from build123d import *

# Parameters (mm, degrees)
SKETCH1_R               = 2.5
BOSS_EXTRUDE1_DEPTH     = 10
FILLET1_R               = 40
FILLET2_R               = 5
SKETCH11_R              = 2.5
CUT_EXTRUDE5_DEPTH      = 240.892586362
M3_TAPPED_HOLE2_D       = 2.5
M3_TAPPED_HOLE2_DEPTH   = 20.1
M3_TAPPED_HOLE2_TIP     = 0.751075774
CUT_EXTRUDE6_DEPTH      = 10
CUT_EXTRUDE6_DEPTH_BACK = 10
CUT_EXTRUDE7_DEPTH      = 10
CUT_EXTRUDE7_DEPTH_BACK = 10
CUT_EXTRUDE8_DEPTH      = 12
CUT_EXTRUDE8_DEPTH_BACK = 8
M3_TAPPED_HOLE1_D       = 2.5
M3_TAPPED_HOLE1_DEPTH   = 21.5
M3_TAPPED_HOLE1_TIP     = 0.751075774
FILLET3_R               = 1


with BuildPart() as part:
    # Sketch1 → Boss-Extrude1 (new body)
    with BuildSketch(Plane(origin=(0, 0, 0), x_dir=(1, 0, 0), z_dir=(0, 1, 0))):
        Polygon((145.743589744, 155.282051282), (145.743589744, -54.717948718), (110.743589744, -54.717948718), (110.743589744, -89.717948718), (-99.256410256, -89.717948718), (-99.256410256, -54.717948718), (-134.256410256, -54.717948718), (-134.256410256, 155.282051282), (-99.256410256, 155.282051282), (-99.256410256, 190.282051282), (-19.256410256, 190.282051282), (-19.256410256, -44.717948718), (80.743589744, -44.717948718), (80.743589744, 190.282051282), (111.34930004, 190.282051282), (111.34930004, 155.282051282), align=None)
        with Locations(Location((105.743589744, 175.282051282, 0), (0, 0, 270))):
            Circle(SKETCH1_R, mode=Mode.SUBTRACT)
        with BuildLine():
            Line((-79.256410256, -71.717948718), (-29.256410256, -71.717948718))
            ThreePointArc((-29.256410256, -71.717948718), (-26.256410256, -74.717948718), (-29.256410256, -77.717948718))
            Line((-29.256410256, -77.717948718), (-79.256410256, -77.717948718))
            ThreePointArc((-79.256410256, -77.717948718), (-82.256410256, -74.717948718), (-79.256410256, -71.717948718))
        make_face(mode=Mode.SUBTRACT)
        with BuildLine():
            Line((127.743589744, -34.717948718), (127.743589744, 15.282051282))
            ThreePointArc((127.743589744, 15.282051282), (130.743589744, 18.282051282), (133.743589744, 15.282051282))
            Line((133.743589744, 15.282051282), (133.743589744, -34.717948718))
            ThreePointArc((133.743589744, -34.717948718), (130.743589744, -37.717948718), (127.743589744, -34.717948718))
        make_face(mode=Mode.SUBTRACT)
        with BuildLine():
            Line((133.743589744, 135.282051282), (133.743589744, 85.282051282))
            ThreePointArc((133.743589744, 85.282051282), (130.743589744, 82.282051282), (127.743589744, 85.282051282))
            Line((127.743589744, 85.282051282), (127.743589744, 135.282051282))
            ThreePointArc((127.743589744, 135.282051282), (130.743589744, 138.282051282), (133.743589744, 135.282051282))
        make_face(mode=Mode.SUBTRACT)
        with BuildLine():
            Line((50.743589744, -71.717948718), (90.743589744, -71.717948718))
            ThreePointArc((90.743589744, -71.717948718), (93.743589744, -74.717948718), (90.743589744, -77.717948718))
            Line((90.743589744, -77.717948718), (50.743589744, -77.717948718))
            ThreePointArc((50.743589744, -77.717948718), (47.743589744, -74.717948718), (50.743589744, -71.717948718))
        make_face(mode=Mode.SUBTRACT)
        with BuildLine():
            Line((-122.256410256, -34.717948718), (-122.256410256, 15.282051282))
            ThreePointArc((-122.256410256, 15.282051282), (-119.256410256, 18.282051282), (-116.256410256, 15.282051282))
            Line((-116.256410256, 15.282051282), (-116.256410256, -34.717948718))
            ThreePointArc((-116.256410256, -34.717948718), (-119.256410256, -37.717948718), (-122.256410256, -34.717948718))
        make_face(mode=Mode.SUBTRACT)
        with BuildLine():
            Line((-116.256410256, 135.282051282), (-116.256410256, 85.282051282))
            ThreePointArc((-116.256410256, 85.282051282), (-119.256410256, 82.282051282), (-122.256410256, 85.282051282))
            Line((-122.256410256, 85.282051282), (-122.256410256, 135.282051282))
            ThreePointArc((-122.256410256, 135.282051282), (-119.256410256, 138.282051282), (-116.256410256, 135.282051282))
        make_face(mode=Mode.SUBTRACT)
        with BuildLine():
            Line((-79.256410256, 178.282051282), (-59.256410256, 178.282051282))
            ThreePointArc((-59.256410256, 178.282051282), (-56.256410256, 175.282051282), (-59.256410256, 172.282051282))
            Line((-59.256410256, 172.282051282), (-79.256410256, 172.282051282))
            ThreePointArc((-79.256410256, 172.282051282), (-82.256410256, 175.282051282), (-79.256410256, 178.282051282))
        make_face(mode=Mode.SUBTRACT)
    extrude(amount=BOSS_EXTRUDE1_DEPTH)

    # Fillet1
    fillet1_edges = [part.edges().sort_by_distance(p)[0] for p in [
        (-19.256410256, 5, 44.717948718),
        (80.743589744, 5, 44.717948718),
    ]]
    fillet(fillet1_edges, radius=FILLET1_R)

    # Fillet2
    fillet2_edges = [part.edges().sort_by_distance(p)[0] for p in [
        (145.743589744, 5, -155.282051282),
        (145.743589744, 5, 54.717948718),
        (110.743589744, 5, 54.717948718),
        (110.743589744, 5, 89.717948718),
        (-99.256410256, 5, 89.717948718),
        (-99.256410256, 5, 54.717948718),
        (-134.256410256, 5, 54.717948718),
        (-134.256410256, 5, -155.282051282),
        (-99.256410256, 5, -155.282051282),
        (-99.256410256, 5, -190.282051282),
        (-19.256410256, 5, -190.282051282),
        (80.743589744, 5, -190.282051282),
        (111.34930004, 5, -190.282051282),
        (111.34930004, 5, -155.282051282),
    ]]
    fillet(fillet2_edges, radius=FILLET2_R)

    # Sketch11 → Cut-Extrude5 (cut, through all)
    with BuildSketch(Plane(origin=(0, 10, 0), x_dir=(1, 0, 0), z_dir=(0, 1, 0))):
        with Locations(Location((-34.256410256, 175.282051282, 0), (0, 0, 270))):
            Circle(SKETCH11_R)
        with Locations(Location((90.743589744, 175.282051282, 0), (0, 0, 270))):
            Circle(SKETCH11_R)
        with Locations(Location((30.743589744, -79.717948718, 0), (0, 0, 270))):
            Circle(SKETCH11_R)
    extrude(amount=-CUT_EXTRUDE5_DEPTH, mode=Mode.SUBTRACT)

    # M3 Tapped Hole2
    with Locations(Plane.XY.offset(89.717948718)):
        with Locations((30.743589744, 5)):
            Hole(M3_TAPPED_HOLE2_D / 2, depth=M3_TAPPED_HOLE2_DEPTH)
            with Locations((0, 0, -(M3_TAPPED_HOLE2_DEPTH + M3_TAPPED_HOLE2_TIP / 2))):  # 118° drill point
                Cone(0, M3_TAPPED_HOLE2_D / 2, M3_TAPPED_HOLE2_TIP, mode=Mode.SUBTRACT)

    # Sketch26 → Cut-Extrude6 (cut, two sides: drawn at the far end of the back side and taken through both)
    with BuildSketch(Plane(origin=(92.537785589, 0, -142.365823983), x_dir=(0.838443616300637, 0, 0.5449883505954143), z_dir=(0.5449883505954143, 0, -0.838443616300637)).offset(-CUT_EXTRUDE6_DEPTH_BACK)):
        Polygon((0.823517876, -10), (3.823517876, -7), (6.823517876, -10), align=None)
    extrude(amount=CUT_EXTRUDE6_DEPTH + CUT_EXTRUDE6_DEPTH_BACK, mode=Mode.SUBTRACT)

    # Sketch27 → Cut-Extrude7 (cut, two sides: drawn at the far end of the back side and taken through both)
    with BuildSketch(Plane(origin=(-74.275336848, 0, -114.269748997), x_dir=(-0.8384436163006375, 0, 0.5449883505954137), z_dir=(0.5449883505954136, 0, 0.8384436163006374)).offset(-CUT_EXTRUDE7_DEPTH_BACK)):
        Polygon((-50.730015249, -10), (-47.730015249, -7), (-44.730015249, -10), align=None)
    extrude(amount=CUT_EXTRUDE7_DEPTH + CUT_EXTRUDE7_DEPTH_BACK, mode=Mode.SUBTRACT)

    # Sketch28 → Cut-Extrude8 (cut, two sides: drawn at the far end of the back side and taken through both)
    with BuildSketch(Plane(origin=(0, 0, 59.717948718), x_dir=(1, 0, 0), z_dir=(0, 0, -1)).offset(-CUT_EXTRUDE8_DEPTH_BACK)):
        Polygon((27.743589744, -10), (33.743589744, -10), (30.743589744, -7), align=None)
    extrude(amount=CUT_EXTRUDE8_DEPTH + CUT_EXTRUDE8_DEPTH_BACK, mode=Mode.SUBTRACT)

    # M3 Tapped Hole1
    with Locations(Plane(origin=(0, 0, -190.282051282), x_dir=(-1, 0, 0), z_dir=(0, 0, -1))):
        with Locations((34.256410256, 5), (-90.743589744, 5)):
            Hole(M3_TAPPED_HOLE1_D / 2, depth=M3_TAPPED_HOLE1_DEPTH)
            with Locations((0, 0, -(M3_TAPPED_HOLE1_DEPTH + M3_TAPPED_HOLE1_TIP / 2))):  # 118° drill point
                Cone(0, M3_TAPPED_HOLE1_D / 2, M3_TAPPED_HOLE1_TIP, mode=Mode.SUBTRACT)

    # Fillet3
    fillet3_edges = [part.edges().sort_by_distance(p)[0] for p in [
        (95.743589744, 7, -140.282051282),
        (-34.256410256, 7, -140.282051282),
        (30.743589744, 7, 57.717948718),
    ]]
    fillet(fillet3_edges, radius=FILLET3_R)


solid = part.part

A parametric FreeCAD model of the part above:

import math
import FreeCAD as App
import Part
import Sketcher

V = App.Vector
Q = App.Units.Quantity


def edges_at(feature, points):
    """Names of the edges that pass closest to the given points."""
    edges = feature.Shape.Edges
    near = lambda p: min(range(len(edges)), key=lambda i: edges[i].distToShape(Part.Vertex(*p))[0])
    return sorted({f"Edge{near(p) + 1}" for p in points})


def add_polygon(sketch, points):
    """Adds a closed chain of lines whose ends are joined by coincident constraints."""
    first, n = sketch.GeometryCount, len(points)
    for a, b in zip(points, points[1:] + points[:1]):
        sketch.addGeometry(Part.LineSegment(App.Vector(*a, 0), App.Vector(*b, 0)), False)
    for i in range(n):
        sketch.addConstraint(Sketcher.Constraint("Coincident", first + i, 2, first + (i + 1) % n, 1))

doc = App.newDocument("Part")
body = doc.addObject("PartDesign::Body", "Body")

# Sketch on XZ plane
sketch1 = body.newObject("Sketcher::SketchObject", "Sketch")
sketch1.AttachmentSupport = (doc.getObject("XZ_Plane"), [""])
sketch1.MapMode = "FlatFace"
add_polygon(sketch1, [(145.7, 54.7), (145.7, -155.3), (111.3, -155.3), (111.3, -190.3), (80.7, -190.3), (80.7, 44.7), (-19.3, 44.7), (-19.3, -190.3), (-99.3, -190.3), (-99.3, -155.3), (-134.3, -155.3), (-134.3, 54.7), (-99.3, 54.7), (-99.3, 89.7), (110.7, 89.7), (110.7, 54.7)])  # lines 0-15
sketch1.addGeometry(Part.LineSegment(V(50.7, 71.7, 0), V(90.7, 71.7, 0)), False)  # 16
sketch1.addGeometry(Part.ArcOfCircle(Part.Circle(V(90.7, 74.7, 0), V(0, 0, 1), 3), math.radians(-90), math.radians(90)), False)  # 17
sketch1.addGeometry(Part.LineSegment(V(90.7, 77.7, 0), V(50.7, 77.7, 0)), False)  # 18
sketch1.addGeometry(Part.ArcOfCircle(Part.Circle(V(50.7, 74.7, 0), V(0, 0, 1), 3), math.radians(90), math.radians(270)), False)  # 19
sketch1.addGeometry(Part.LineSegment(V(127.7, 34.7, 0), V(127.7, -15.3, 0)), False)  # 20
sketch1.addGeometry(Part.ArcOfCircle(Part.Circle(V(130.7, -15.3, 0), V(0, 0, 1), 3), math.radians(180), math.radians(360)), False)  # 21
sketch1.addGeometry(Part.LineSegment(V(133.7, -15.3, 0), V(133.7, 34.7, 0)), False)  # 22
sketch1.addGeometry(Part.ArcOfCircle(Part.Circle(V(130.7, 34.7, 0), V(0, 0, 1), 3), math.radians(0), math.radians(180)), False)  # 23
sketch1.addGeometry(Part.LineSegment(V(-79.3, 71.7, 0), V(-29.3, 71.7, 0)), False)  # 24
sketch1.addGeometry(Part.ArcOfCircle(Part.Circle(V(-29.3, 74.7, 0), V(0, 0, 1), 3), math.radians(-90), math.radians(90)), False)  # 25
sketch1.addGeometry(Part.LineSegment(V(-29.3, 77.7, 0), V(-79.3, 77.7, 0)), False)  # 26
sketch1.addGeometry(Part.ArcOfCircle(Part.Circle(V(-79.3, 74.7, 0), V(0, 0, 1), 3), math.radians(90), math.radians(270)), False)  # 27
sketch1.addGeometry(Part.LineSegment(V(-122.3, 34.7, 0), V(-122.3, -15.3, 0)), False)  # 28
sketch1.addGeometry(Part.ArcOfCircle(Part.Circle(V(-119.3, -15.3, 0), V(0, 0, 1), 3), math.radians(180), math.radians(360)), False)  # 29
sketch1.addGeometry(Part.LineSegment(V(-116.3, -15.3, 0), V(-116.3, 34.7, 0)), False)  # 30
sketch1.addGeometry(Part.ArcOfCircle(Part.Circle(V(-119.3, 34.7, 0), V(0, 0, 1), 3), math.radians(0), math.radians(180)), False)  # 31
sketch1.addGeometry(Part.LineSegment(V(133.7, -135.3, 0), V(133.7, -85.3, 0)), False)  # 32
sketch1.addGeometry(Part.ArcOfCircle(Part.Circle(V(130.7, -85.3, 0), V(0, 0, 1), 3), math.radians(0), math.radians(180)), False)  # 33
sketch1.addGeometry(Part.LineSegment(V(127.7, -85.3, 0), V(127.7, -135.3, 0)), False)  # 34
sketch1.addGeometry(Part.ArcOfCircle(Part.Circle(V(130.7, -135.3, 0), V(0, 0, 1), 3), math.radians(180), math.radians(360)), False)  # 35
sketch1.addGeometry(Part.Circle(V(105.7, -175.3, 0), V(0, 0, 1), 2.5), False)  # 36
sketch1.addGeometry(Part.LineSegment(V(-116.3, -135.3, 0), V(-116.3, -85.3, 0)), False)  # 37
sketch1.addGeometry(Part.ArcOfCircle(Part.Circle(V(-119.3, -85.3, 0), V(0, 0, 1), 3), math.radians(0), math.radians(180)), False)  # 38
sketch1.addGeometry(Part.LineSegment(V(-122.3, -85.3, 0), V(-122.3, -135.3, 0)), False)  # 39
sketch1.addGeometry(Part.ArcOfCircle(Part.Circle(V(-119.3, -135.3, 0), V(0, 0, 1), 3), math.radians(180), math.radians(360)), False)  # 40
sketch1.addGeometry(Part.LineSegment(V(-79.3, -178.3, 0), V(-59.3, -178.3, 0)), False)  # 41
sketch1.addGeometry(Part.ArcOfCircle(Part.Circle(V(-59.3, -175.3, 0), V(0, 0, 1), 3), math.radians(-90), math.radians(90)), False)  # 42
sketch1.addGeometry(Part.LineSegment(V(-59.3, -172.3, 0), V(-79.3, -172.3, 0)), False)  # 43
sketch1.addGeometry(Part.ArcOfCircle(Part.Circle(V(-79.3, -175.3, 0), V(0, 0, 1), 3), math.radians(90), math.radians(270)), False)  # 44
sketch1.addConstraint(Sketcher.Constraint("Tangent", 16, 2, 17, 1))
sketch1.addConstraint(Sketcher.Constraint("Tangent", 17, 2, 18, 1))
sketch1.addConstraint(Sketcher.Constraint("Tangent", 18, 2, 19, 1))
sketch1.addConstraint(Sketcher.Constraint("Tangent", 19, 2, 16, 1))
sketch1.addConstraint(Sketcher.Constraint("Tangent", 20, 2, 21, 1))
sketch1.addConstraint(Sketcher.Constraint("Tangent", 21, 2, 22, 1))
sketch1.addConstraint(Sketcher.Constraint("Tangent", 22, 2, 23, 1))
sketch1.addConstraint(Sketcher.Constraint("Tangent", 23, 2, 20, 1))
sketch1.addConstraint(Sketcher.Constraint("Tangent", 24, 2, 25, 1))
sketch1.addConstraint(Sketcher.Constraint("Tangent", 25, 2, 26, 1))
sketch1.addConstraint(Sketcher.Constraint("Tangent", 26, 2, 27, 1))
sketch1.addConstraint(Sketcher.Constraint("Tangent", 27, 2, 24, 1))
sketch1.addConstraint(Sketcher.Constraint("Tangent", 28, 2, 29, 1))
sketch1.addConstraint(Sketcher.Constraint("Tangent", 29, 2, 30, 1))
sketch1.addConstraint(Sketcher.Constraint("Tangent", 30, 2, 31, 1))
sketch1.addConstraint(Sketcher.Constraint("Tangent", 31, 2, 28, 1))
sketch1.addConstraint(Sketcher.Constraint("Tangent", 32, 2, 33, 1))
sketch1.addConstraint(Sketcher.Constraint("Tangent", 33, 2, 34, 1))
sketch1.addConstraint(Sketcher.Constraint("Tangent", 34, 2, 35, 1))
sketch1.addConstraint(Sketcher.Constraint("Tangent", 35, 2, 32, 1))
sketch1.addConstraint(Sketcher.Constraint("Tangent", 37, 2, 38, 1))
sketch1.addConstraint(Sketcher.Constraint("Tangent", 38, 2, 39, 1))
sketch1.addConstraint(Sketcher.Constraint("Tangent", 39, 2, 40, 1))
sketch1.addConstraint(Sketcher.Constraint("Tangent", 40, 2, 37, 1))
sketch1.addConstraint(Sketcher.Constraint("Tangent", 41, 2, 42, 1))
sketch1.addConstraint(Sketcher.Constraint("Tangent", 42, 2, 43, 1))
sketch1.addConstraint(Sketcher.Constraint("Tangent", 43, 2, 44, 1))
sketch1.addConstraint(Sketcher.Constraint("Tangent", 44, 2, 41, 1))
sketch1.addConstraint(Sketcher.Constraint("Vertical", 0))
sketch1.addConstraint(Sketcher.Constraint("Horizontal", 1))
sketch1.addConstraint(Sketcher.Constraint("Vertical", 2))
sketch1.addConstraint(Sketcher.Constraint("Horizontal", 3))
sketch1.addConstraint(Sketcher.Constraint("Vertical", 4))
sketch1.addConstraint(Sketcher.Constraint("Horizontal", 5))
sketch1.addConstraint(Sketcher.Constraint("Vertical", 6))
sketch1.addConstraint(Sketcher.Constraint("Horizontal", 7))
sketch1.addConstraint(Sketcher.Constraint("Vertical", 8))
sketch1.addConstraint(Sketcher.Constraint("Horizontal", 9))
sketch1.addConstraint(Sketcher.Constraint("Vertical", 10))
sketch1.addConstraint(Sketcher.Constraint("Horizontal", 11))
sketch1.addConstraint(Sketcher.Constraint("Vertical", 12))
sketch1.addConstraint(Sketcher.Constraint("Horizontal", 13))
sketch1.addConstraint(Sketcher.Constraint("Vertical", 14))
sketch1.addConstraint(Sketcher.Constraint("Horizontal", 15))
sketch1.addConstraint(Sketcher.Constraint("Horizontal", 16))
sketch1.addConstraint(Sketcher.Constraint("Horizontal", 18))
sketch1.addConstraint(Sketcher.Constraint("Vertical", 20))
sketch1.addConstraint(Sketcher.Constraint("Vertical", 22))
sketch1.addConstraint(Sketcher.Constraint("Horizontal", 24))
sketch1.addConstraint(Sketcher.Constraint("Horizontal", 26))
sketch1.addConstraint(Sketcher.Constraint("Vertical", 28))
sketch1.addConstraint(Sketcher.Constraint("Vertical", 30))
sketch1.addConstraint(Sketcher.Constraint("Vertical", 32))
sketch1.addConstraint(Sketcher.Constraint("Vertical", 34))
sketch1.addConstraint(Sketcher.Constraint("Vertical", 37))
sketch1.addConstraint(Sketcher.Constraint("Vertical", 39))
sketch1.addConstraint(Sketcher.Constraint("Horizontal", 41))
sketch1.addConstraint(Sketcher.Constraint("Horizontal", 43))
sketch1.addConstraint(Sketcher.Constraint("Equal", 19, 21))
sketch1.addConstraint(Sketcher.Constraint("Equal", 23, 25))
sketch1.addConstraint(Sketcher.Constraint("Equal", 27, 29))
sketch1.addConstraint(Sketcher.Constraint("Equal", 31, 33))
sketch1.addConstraint(Sketcher.Constraint("Equal", 35, 38))
sketch1.addConstraint(Sketcher.Constraint("Equal", 40, 42))
sketch1.addConstraint(Sketcher.Constraint("Horizontal", 19, 3, 25, 3))
sketch1.addConstraint(Sketcher.Constraint("Horizontal", 21, 3, 29, 3))
sketch1.addConstraint(Sketcher.Constraint("Horizontal", 23, 3, 31, 3))
sketch1.addConstraint(Sketcher.Constraint("Horizontal", 33, 3, 38, 3))
sketch1.addConstraint(Sketcher.Constraint("Horizontal", 35, 3, 40, 3))
sketch1.addConstraint(Sketcher.Constraint("Horizontal", 36, 3, 42, 3))
sketch1.addConstraint(Sketcher.Constraint("Horizontal", 3, 2, 6, 2))
sketch1.addConstraint(Sketcher.Constraint("Horizontal", 1, 2, 8, 2))
sketch1.addConstraint(Sketcher.Constraint("Horizontal", 11, 2, 14, 2))
sketch1.addConstraint(Sketcher.Constraint("Vertical", 23, 3, 33, 3))
sketch1.addConstraint(Sketcher.Constraint("Vertical", 31, 3, 38, 3))
sketch1.addConstraint(Sketcher.Constraint("Vertical", 27, 3, 44, 3))
sketch1.addConstraint(Sketcher.Constraint("Vertical", 8, 2, 11, 2))
sketch1.addConstraint(Sketcher.Constraint("Equal", 11, 15))
sketch1.addConstraint(Sketcher.Constraint("Equal", 13, 0))
sketch1.addConstraint(Sketcher.Constraint("Equal", 15, 2))
sketch1.addConstraint(Sketcher.Constraint("Equal", 8, 12))
sketch1.addConstraint(Sketcher.Constraint("Equal", 26, 20))
sketch1.addConstraint(Sketcher.Constraint("Equal", 30, 32))
sketch1.addConstraint(Sketcher.Constraint("Diameter", 36, Q("5 mm")))
sketch1.addConstraint(Sketcher.Constraint("Radius", 17, Q("3 mm")))
sketch1.addConstraint(Sketcher.Constraint("DistanceX", 5, 2, 5, 1, Q("100 mm")))
sketch1.addConstraint(Sketcher.Constraint("DistanceX", 7, 2, 7, 1, Q("80 mm")))
sketch1.addConstraint(Sketcher.Constraint("DistanceX", 9, 2, 9, 1, Q("35 mm")))
sketch1.addConstraint(Sketcher.Constraint("DistanceX", 13, 1, 13, 2, Q("210 mm")))
sketch1.addConstraint(Sketcher.Constraint("DistanceX", 16, 1, 16, 2, Q("40 mm")))
sketch1.addConstraint(Sketcher.Constraint("DistanceX", 24, 1, 24, 2, Q("50 mm")))
sketch1.addConstraint(Sketcher.Constraint("DistanceX", 41, 1, 41, 2, Q("20 mm")))
sketch1.addConstraint(Sketcher.Constraint("DistanceY", 4, 1, 4, 2, Q("235 mm")))
sketch1.addConstraint(Sketcher.Constraint("DistanceX", 17, 3, 21, 3, Q("40 mm")))
sketch1.addConstraint(Sketcher.Constraint("DistanceY", 21, 3, 17, 3, Q("90 mm")))
sketch1.addConstraint(Sketcher.Constraint("DistanceX", 25, 3, 19, 3, Q("80 mm")))
sketch1.addConstraint(Sketcher.Constraint("DistanceX", 29, 3, 27, 3, Q("40 mm")))
sketch1.addConstraint(Sketcher.Constraint("DistanceY", 33, 3, 21, 3, Q("70 mm")))
sketch1.addConstraint(Sketcher.Constraint("DistanceX", 36, 3, 35, 3, Q("25 mm")))
sketch1.addConstraint(Sketcher.Constraint("DistanceY", 36, 3, 35, 3, Q("40 mm")))
sketch1.addConstraint(Sketcher.Constraint("DistanceX", 35, 3, 0, 2, Q("15 mm")))
sketch1.addConstraint(Sketcher.Constraint("DistanceY", 0, 2, 35, 3, Q("20 mm")))
sketch1.addConstraint(Sketcher.Constraint("DistanceX", 1, 2, 1, 1, Q("34.39429 mm")))
sketch1.addConstraint(Sketcher.Constraint("DistanceX", -1, 1, 1, 2, Q("111.3493 mm")))
sketch1.addConstraint(Sketcher.Constraint("DistanceY", -1, 1, 17, 3, Q("74.717949 mm")))
pad1 = body.newObject("PartDesign::Pad", "Pad")
pad1.Profile = sketch1
pad1.Length = 10
pad1.Reversed = True
doc.recompute()

fillet = body.newObject("PartDesign::Fillet", "Fillet")
fillet.Base = (pad1, edges_at(pad1, [(-19.256, 5, 44.718), (80.744, 5, 44.718)]))
fillet.Radius = 40
doc.recompute()

fillet2 = body.newObject("PartDesign::Fillet", "Fillet001")
fillet2.Base = (fillet, edges_at(fillet, [
    (145.744, 5, -155.282),
    (145.744, 5, 54.718),
    (110.744, 5, 54.718),
    (110.744, 5, 89.718),
    (-99.256, 5, 89.718),
    (-99.256, 5, 54.718),
    (-134.256, 5, 54.718),
    (-134.256, 5, -155.282),
    (-99.256, 5, -155.282),
    (-99.256, 5, -190.282),
    (-19.256, 5, -190.282),
    (80.744, 5, -190.282),
    (111.349, 5, -190.282),
    (111.349, 5, -155.282),
]))
fillet2.Radius = 5

# Sketch on XZ plane
sketch2 = body.newObject("Sketcher::SketchObject", "Sketch001")
sketch2.AttachmentSupport = (doc.getObject("XZ_Plane"), [""])
sketch2.MapMode = "FlatFace"
sketch2.AttachmentOffset = App.Placement(V(0, 0, -10), App.Rotation())
sketch2.addGeometry(Part.Circle(V(-34.3, -175.3, 0), V(0, 0, 1), 2.5), False)
sketch2.addGeometry(Part.Circle(V(90.7, -175.3, 0), V(0, 0, 1), 2.5), False)
sketch2.addGeometry(Part.Circle(V(30.7, 79.7, 0), V(0, 0, 1), 2.5), False)
sketch2.addConstraint(Sketcher.Constraint("Equal", 0, 1))
sketch2.addConstraint(Sketcher.Constraint("Equal", 1, 2))
sketch2.addConstraint(Sketcher.Constraint("Horizontal", 0, 3, 1, 3))
sketch2.addConstraint(Sketcher.Constraint("Diameter", 0, Q("5 mm")))
sketch2.addConstraint(Sketcher.Constraint("DistanceX", 0, 3, 1, 3, Q("125 mm")))
sketch2.addConstraint(Sketcher.Constraint("DistanceX", 2, 3, 1, 3, Q("60 mm")))
sketch2.addConstraint(Sketcher.Constraint("DistanceY", 1, 3, 2, 3, Q("255 mm")))
sketch2.addConstraint(Sketcher.Constraint("DistanceX", 0, 3, -1, 1, Q("34.25641 mm")))
sketch2.addConstraint(Sketcher.Constraint("DistanceY", 0, 3, -1, 1, Q("175.282051 mm")))
pocket1 = body.newObject("PartDesign::Pocket", "Pocket")
pocket1.Profile = sketch2
pocket1.Type = "ThroughAll"
pocket1.Reversed = True

# Sketch on XY plane
sketch3 = body.newObject("Sketcher::SketchObject", "Sketch002")
sketch3.AttachmentSupport = (doc.getObject("XY_Plane"), [""])
sketch3.MapMode = "FlatFace"
sketch3.AttachmentOffset = App.Placement(V(0, 0, 89.717949), App.Rotation())
sketch3.addGeometry(Part.Circle(V(30.7, 5, 0), V(0, 0, 1), 1.2), False)
sketch3.addConstraint(Sketcher.Constraint("Diameter", 0, Q("2.5 mm")))
sketch3.addConstraint(Sketcher.Constraint("DistanceY", -1, 1, 0, 3, Q("5 mm")))
sketch3.addConstraint(Sketcher.Constraint("DistanceX", -1, 1, 0, 3, Q("30.74359 mm")))
doc.recompute()
hole = body.newObject("PartDesign::Hole", "Hole")
hole.Profile = sketch3
hole.ThreadType = "None"
hole.Diameter = 2.5
hole.DepthType = "Dimension"
hole.Depth = 20.1
hole.DrillPoint = "Angled"
hole.DrillPointAngle = 118

# Sketch on an angled plane
sketch4 = body.newObject("Sketcher::SketchObject", "Sketch003")
sketch4.Placement = App.Placement(V(92.537786, 0, -142.365824), App.Rotation(V(0.838443616, 0, 0.544988351), V(0, -1, 0), V(0.544988351, 0, -0.838443616), "ZXY"))
add_polygon(sketch4, [(3.8, -7), (0.8, -10), (6.8, -10)])  # lines 0-2
sketch4.addConstraint(Sketcher.Constraint("Horizontal", 1))
sketch4.addConstraint(Sketcher.Constraint("Perpendicular", 0, 2))
sketch4.addConstraint(Sketcher.Constraint("Equal", 0, 2))
sketch4.addConstraint(Sketcher.Constraint("DistanceX", 1, 1, 1, 2, Q("6 mm")))
sketch4.addConstraint(Sketcher.Constraint("DistanceY", 0, 2, -1, 1, Q("10 mm")))
sketch4.addConstraint(Sketcher.Constraint("DistanceX", -1, 1, 0, 2, Q("0.823518 mm")))
pocket2 = body.newObject("PartDesign::Pocket", "Pocket001")
pocket2.Profile = sketch4
pocket2.Type = "TwoLengths"
pocket2.Length = 10
pocket2.Length2 = 10
pocket2.Reversed = True

# Sketch on an angled plane
sketch5 = body.newObject("Sketcher::SketchObject", "Sketch004")
sketch5.Placement = App.Placement(V(-74.275337, 0, -114.269749), App.Rotation(V(-0.838443616, 0, 0.544988351), V(0, -1, 0), V(0.544988351, 0, 0.838443616), "ZXY"))
add_polygon(sketch5, [(-47.7, -7), (-50.7, -10), (-44.7, -10)])  # lines 0-2
sketch5.addConstraint(Sketcher.Constraint("Horizontal", 1))
sketch5.addConstraint(Sketcher.Constraint("Perpendicular", 0, 2))
sketch5.addConstraint(Sketcher.Constraint("Equal", 0, 2))
sketch5.addConstraint(Sketcher.Constraint("DistanceX", 1, 1, 1, 2, Q("6 mm")))
sketch5.addConstraint(Sketcher.Constraint("DistanceY", 0, 2, -1, 1, Q("10 mm")))
sketch5.addConstraint(Sketcher.Constraint("DistanceX", 0, 2, -1, 1, Q("50.730015 mm")))
pocket3 = body.newObject("PartDesign::Pocket", "Pocket002")
pocket3.Profile = sketch5
pocket3.Type = "TwoLengths"
pocket3.Length = 10
pocket3.Length2 = 10
pocket3.Reversed = True

# Sketch on XY plane
sketch6 = body.newObject("Sketcher::SketchObject", "Sketch005")
sketch6.AttachmentSupport = (doc.getObject("XY_Plane"), [""])
sketch6.MapMode = "FlatFace"
sketch6.AttachmentOffset = App.Placement(V(0, 0, 59.717949), App.Rotation())
add_polygon(sketch6, [(27.7, 10), (33.7, 10), (30.7, 7)])  # lines 0-2
sketch6.addConstraint(Sketcher.Constraint("Horizontal", 0))
sketch6.addConstraint(Sketcher.Constraint("Perpendicular", 1, 2))
sketch6.addConstraint(Sketcher.Constraint("Equal", 1, 2))
sketch6.addConstraint(Sketcher.Constraint("DistanceX", 0, 1, 0, 2, Q("6 mm")))
sketch6.addConstraint(Sketcher.Constraint("DistanceY", -1, 1, 0, 2, Q("10 mm")))
sketch6.addConstraint(Sketcher.Constraint("DistanceX", -1, 1, 0, 2, Q("33.74359 mm")))
pocket4 = body.newObject("PartDesign::Pocket", "Pocket003")
pocket4.Profile = sketch6
pocket4.Type = "TwoLengths"
pocket4.Length = 12
pocket4.Length2 = 8

# Sketch on XY plane
sketch7 = body.newObject("Sketcher::SketchObject", "Sketch006")
sketch7.AttachmentSupport = (doc.getObject("XY_Plane"), [""])
sketch7.MapMode = "FlatFace"
sketch7.AttachmentOffset = App.Placement(V(0, 0, -190.282051), App.Rotation())
sketch7.addGeometry(Part.Circle(V(-34.3, 5, 0), V(0, 0, 1), 1.2), False)
sketch7.addGeometry(Part.Circle(V(90.7, 5, 0), V(0, 0, 1), 1.2), False)
sketch7.addConstraint(Sketcher.Constraint("Equal", 0, 1))
sketch7.addConstraint(Sketcher.Constraint("Horizontal", 0, 3, 1, 3))
sketch7.addConstraint(Sketcher.Constraint("Diameter", 0, Q("2.5 mm")))
sketch7.addConstraint(Sketcher.Constraint("DistanceY", -1, 1, 0, 3, Q("5 mm")))
sketch7.addConstraint(Sketcher.Constraint("DistanceX", 0, 3, 1, 3, Q("125 mm")))
sketch7.addConstraint(Sketcher.Constraint("DistanceX", 0, 3, -1, 1, Q("34.25641 mm")))
doc.recompute()
hole2 = body.newObject("PartDesign::Hole", "Hole001")
hole2.Profile = sketch7
hole2.ThreadType = "None"
hole2.Diameter = 2.5
hole2.DepthType = "Dimension"
hole2.Depth = 21.5
hole2.DrillPoint = "Angled"
hole2.DrillPointAngle = 118
hole2.Reversed = True
doc.recompute()

fillet3 = body.newObject("PartDesign::Fillet", "Fillet002")
fillet3.Base = (hole2, edges_at(hole2, [(95.744, 7, -140.282), (-34.256, 7, -140.282), (30.744, 7, 57.718)]))
fillet3.Radius = 1

doc.recompute()
